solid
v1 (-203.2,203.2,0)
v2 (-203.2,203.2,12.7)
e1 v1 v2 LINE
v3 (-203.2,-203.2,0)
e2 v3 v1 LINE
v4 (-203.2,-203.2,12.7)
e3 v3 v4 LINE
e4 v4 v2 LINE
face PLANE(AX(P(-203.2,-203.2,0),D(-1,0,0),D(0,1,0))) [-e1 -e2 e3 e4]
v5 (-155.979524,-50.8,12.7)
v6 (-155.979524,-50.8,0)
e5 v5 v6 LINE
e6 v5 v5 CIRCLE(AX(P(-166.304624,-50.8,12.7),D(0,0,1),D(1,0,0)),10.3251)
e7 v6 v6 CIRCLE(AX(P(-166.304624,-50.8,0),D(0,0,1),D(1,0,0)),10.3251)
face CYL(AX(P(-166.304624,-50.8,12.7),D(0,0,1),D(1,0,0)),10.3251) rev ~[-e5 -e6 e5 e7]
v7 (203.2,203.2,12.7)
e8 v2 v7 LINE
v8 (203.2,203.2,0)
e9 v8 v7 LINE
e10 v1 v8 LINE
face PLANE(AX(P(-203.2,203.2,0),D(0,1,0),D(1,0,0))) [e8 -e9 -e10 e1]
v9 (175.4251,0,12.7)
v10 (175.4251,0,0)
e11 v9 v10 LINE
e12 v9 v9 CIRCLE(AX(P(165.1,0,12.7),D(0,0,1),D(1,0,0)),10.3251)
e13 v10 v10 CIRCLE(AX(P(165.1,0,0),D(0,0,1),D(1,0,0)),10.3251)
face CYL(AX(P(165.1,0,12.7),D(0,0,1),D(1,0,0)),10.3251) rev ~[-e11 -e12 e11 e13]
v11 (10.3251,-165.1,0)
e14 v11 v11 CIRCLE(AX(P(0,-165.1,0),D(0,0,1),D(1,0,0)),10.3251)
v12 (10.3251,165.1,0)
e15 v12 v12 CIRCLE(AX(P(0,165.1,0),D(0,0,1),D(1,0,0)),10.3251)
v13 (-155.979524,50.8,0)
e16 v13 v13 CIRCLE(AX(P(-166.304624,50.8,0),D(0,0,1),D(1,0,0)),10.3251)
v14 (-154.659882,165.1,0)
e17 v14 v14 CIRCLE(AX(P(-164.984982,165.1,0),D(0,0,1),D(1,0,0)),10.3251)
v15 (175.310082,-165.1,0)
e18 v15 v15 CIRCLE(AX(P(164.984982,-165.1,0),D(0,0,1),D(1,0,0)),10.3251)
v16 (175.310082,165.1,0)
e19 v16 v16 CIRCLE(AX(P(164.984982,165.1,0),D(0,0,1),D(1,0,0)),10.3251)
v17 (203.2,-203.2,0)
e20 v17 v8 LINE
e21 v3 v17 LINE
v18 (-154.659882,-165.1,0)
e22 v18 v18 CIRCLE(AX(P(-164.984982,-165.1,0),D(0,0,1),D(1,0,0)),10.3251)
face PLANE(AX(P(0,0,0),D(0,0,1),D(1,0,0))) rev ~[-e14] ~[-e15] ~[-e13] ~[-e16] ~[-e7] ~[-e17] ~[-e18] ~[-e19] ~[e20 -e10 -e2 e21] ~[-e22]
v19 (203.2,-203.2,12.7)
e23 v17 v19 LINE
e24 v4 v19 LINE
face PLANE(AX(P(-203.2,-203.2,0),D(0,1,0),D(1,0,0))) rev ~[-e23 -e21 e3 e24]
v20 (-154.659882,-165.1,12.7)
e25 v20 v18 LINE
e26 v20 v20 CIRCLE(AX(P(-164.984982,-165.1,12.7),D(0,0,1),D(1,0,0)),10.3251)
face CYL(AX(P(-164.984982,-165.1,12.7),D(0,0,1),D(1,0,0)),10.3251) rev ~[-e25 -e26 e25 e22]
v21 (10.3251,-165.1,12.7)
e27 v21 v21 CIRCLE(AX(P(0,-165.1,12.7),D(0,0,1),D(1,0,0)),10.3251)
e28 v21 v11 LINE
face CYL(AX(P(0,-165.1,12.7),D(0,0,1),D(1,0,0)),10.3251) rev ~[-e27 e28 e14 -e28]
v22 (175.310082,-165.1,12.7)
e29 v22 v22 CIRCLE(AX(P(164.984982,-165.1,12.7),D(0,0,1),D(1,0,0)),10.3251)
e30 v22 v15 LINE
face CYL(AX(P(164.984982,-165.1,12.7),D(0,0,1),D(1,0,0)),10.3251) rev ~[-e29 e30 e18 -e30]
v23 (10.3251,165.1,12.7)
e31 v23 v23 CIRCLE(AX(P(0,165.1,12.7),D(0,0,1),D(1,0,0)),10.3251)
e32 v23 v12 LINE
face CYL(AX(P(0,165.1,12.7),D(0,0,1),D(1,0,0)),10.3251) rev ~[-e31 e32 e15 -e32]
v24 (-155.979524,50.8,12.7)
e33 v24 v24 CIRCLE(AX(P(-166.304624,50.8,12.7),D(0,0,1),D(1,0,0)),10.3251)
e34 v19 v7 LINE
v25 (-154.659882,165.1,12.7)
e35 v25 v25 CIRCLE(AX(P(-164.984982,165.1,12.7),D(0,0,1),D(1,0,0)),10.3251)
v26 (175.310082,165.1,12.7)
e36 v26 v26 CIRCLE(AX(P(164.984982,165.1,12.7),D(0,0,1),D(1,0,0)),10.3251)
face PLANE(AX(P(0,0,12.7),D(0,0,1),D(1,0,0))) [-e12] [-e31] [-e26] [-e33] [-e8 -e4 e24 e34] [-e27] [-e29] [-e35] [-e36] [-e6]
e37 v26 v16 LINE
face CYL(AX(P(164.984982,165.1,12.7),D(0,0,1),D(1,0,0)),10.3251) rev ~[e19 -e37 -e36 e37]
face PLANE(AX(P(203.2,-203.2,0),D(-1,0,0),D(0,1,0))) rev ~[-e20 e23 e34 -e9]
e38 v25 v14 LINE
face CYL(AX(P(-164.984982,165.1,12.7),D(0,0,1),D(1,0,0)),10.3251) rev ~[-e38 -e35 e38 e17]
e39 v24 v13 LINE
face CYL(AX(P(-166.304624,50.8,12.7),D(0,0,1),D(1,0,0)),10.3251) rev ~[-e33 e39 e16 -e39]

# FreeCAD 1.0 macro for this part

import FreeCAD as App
import Part
import Sketcher
Q = App.Units.Quantity


def add_polygon(sketch, points):
    """Adds a closed chain of lines whose ends are joined by coincident constraints."""
    first, n = sketch.GeometryCount, len(points)
    for a, b in zip(points, points[1:] + points[:1]):
        sketch.addGeometry(Part.LineSegment(App.Vector(*a, 0), App.Vector(*b, 0)), False)
    for i in range(n):
        sketch.addConstraint(Sketcher.Constraint("Coincident", first + i, 2, first + (i + 1) % n, 1))

doc = App.newDocument("Part")
body = doc.addObject("PartDesign::Body", "Body")

# Sketch on XY plane
sketch1 = doc.addObject("Sketcher::SketchObject", "Sketch")
body.addObject(sketch1)
sketch1.AttachmentSupport = (doc.XY_Plane, [""])
sketch1.MapMode = "FlatFace"
add_polygon(sketch1, [(-203.2, 203.2), (-203.2, -203.2), (203.2, -203.2), (203.2, 203.2)])  # lines 0-3
sketch1.addConstraint([
    Sketcher.Constraint("Vertical", 0),
    Sketcher.Constraint("Horizontal", 1),
    Sketcher.Constraint("Vertical", 2),
    Sketcher.Constraint("Horizontal", 3),
    Sketcher.Constraint("Symmetric", 0, 2, 2, 2, -1, 1),
    Sketcher.Constraint("Equal", 3, 0),
    Sketcher.Constraint("DistanceX", 1, 1, 1, 2, Q("16 in")),
])
pad1 = doc.addObject("PartDesign::Pad", "Pad")
body.addObject(pad1)
pad1.Profile = sketch1
pad1.Length = Q("0.5 in")

# Sketch on XY plane
sketch2 = doc.addObject("Sketcher::SketchObject", "Sketch001")
body.addObject(sketch2)
sketch2.AttachmentSupport = (doc.XY_Plane, [""])
sketch2.MapMode = "FlatFace"
sketch2.AttachmentOffset = App.Placement(App.Vector(0, 0, 0.5 * 25.4), App.Rotation())
sketch2.addGeometry([
    Part.Circle(App.Vector(-164.984982, 165.1, 0), App.Vector(0, 0, 1), 10.3251),  # 0
    Part.Circle(App.Vector(-166.304624, 50.8, 0), App.Vector(0, 0, 1), 10.3251),  # 1
    Part.Circle(App.Vector(-166.304624, -50.8, 0), App.Vector(0, 0, 1), 10.3251),  # 2
    Part.Circle(App.Vector(-164.984982, -165.1, 0), App.Vector(0, 0, 1), 10.3251),  # 3
    Part.Circle(App.Vector(164.984982, 165.1, 0), App.Vector(0, 0, 1), 10.3251),  # 4
    Part.Circle(App.Vector(164.984982, -165.1, 0), App.Vector(0, 0, 1), 10.3251),  # 5
    Part.Circle(App.Vector(165.1, 0, 0), App.Vector(0, 0, 1), 10.3251),  # 6
    Part.Circle(App.Vector(0, 165.1, 0), App.Vector(0, 0, 1), 10.3251),  # 7
    Part.Circle(App.Vector(0, -165.1, 0), App.Vector(0, 0, 1), 10.3251),  # 8
], False)
sketch2.addConstraint([
    Sketcher.Constraint("Equal", 0, 1),
    Sketcher.Constraint("Equal", 1, 2),
    Sketcher.Constraint("Equal", 2, 3),
    Sketcher.Constraint("Equal", 3, 4),
    Sketcher.Constraint("Equal", 4, 5),
    Sketcher.Constraint("Equal", 5, 6),
    Sketcher.Constraint("Equal", 6, 7),
    Sketcher.Constraint("Equal", 7, 8),
    Sketcher.Constraint("Symmetric", 3, 3, 4, 3, -1, 1),
    Sketcher.Constraint("Symmetric", 0, 3, 5, 3, -1, 1),
    Sketcher.Constraint("Symmetric", 7, 3, 8, 3, -1, 1),
    Sketcher.Constraint("Symmetric", 0, 3, 4, 3, -2),
    Sketcher.Constraint("Symmetric", 1, 3, 2, 3, -1),
    Sketcher.Constraint("PointOnObject", 6, 3, -1),
    Sketcher.Constraint("PointOnObject", 7, 3, -2),
    Sketcher.Constraint("Horizontal", 4, 3, 7, 3),
    Sketcher.Constraint("Diameter", 0, Q("0.813 in")),
    Sketcher.Constraint("DistanceY", -1, 1, 1, 3, Q("2 in")),
    Sketcher.Constraint("DistanceY", 3, 3, 0, 3, Q("13 in")),
    Sketcher.Constraint("DistanceX", -1, 1, 6, 3, Q("6.5 in")),
    Sketcher.Constraint("DistanceX", 0, 3, -1, 1, 164.984982),
    Sketcher.Constraint("DistanceX", 1, 3, 0, 3, 1.319642),
])
pocket1 = doc.addObject("PartDesign::Pocket", "Pocket")
body.addObject(pocket1)
pocket1.Profile = sketch2
pocket1.Length = Q("1 in")

doc.recompute()
